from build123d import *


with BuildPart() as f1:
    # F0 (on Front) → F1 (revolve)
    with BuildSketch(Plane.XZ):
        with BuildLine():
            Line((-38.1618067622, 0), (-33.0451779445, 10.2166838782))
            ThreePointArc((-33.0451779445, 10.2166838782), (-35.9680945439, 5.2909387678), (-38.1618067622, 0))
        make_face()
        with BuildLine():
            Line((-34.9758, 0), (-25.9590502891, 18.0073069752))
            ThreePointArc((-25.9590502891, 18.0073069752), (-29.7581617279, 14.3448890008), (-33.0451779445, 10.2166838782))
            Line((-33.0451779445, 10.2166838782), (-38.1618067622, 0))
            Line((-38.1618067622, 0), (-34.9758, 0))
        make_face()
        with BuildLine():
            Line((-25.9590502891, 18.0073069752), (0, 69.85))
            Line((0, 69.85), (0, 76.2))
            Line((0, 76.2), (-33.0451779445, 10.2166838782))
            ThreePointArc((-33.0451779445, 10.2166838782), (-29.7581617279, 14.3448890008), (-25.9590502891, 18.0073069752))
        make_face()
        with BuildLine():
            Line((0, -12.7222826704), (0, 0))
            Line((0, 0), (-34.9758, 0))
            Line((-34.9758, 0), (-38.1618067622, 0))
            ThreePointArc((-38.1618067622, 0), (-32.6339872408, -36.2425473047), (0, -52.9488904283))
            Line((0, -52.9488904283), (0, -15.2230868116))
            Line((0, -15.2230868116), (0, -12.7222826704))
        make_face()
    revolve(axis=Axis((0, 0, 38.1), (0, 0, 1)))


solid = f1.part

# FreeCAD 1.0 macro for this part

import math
import FreeCAD as App
import Part
import Sketcher
from FreeCAD import Vector
Q = App.Units.Quantity

doc = App.newDocument("Part")
params = doc.addObject("Spreadsheet::Sheet", "Params")
for row, (alias, value) in enumerate([
    ("sketch1_height", "0.25 in"),
    ("sketch1_width", "1.377 in"),
    ("revolution_angle", "360 deg"),
], start=1):
    params.set(f"A{row}", alias)
    params.set(f"B{row}", "=" + value)
    params.setAlias(f"B{row}", alias)

body = doc.addObject("PartDesign::Body", "Body")

# Sketch on XZ plane
sketch1 = body.newObject("Sketcher::SketchObject", "Sketch")
sketch1.AttachmentSupport = (doc.getObject("XZ_Plane"), [""])
sketch1.MapMode = "FlatFace"
sketch1.addGeometry(Part.ArcOfCircle(Part.Circle(Vector(0, -12.722283, 0), Vector(0, 0, 1), 40.226608), math.radians(145.232784), math.radians(161.562781)), False)
sketch1.addGeometry(Part.ArcOfCircle(Part.Circle(Vector(0, -12.722283, 0), Vector(0, 0, 1), 40.226608), math.radians(161.562781), math.radians(270)), False)
sketch1.addGeometry(Part.LineSegment(Vector(0, -52.94889, 0), Vector(0, 0, 0)), False)
sketch1.addGeometry(Part.LineSegment(Vector(0, 0, 0), Vector(-34.9758, 0, 0)), False)
sketch1.addGeometry(Part.LineSegment(Vector(-34.9758, 0, 0), Vector(-25.95905, 18.007307, 0)), False)
sketch1.addGeometry(Part.LineSegment(Vector(-25.95905, 18.007307, 0), Vector(0, 69.85, 0)), False)
sketch1.addGeometry(Part.LineSegment(Vector(0, 69.85, 0), Vector(0, 76.2, 0)), False)
sketch1.addGeometry(Part.LineSegment(Vector(0, 76.2, 0), Vector(-33.045178, 10.216684, 0)), False)
sketch1.addConstraint(Sketcher.Constraint("Tangent", 0, 2, 1, 1))
sketch1.addConstraint(Sketcher.Constraint("Coincident", 1, 2, 2, 1))
sketch1.addConstraint(Sketcher.Constraint("Coincident", 2, 2, 3, 1))
sketch1.addConstraint(Sketcher.Constraint("Coincident", 3, 2, 4, 1))
sketch1.addConstraint(Sketcher.Constraint("Coincident", 4, 2, 5, 1))
sketch1.addConstraint(Sketcher.Constraint("Coincident", 5, 2, 6, 1))
sketch1.addConstraint(Sketcher.Constraint("Coincident", 6, 2, 7, 1))
sketch1.addConstraint(Sketcher.Constraint("Coincident", 7, 2, 0, 1))
sketch1.addConstraint(Sketcher.Constraint("Vertical", 2))
sketch1.addConstraint(Sketcher.Constraint("Horizontal", 3))
sketch1.addConstraint(Sketcher.Constraint("Vertical", 6))
sketch1.addConstraint(Sketcher.Constraint("Coincident", 2, 2, -1, 1))
sketch1.addConstraint(Sketcher.Constraint("Equal", 0, 1))
sketch1.addConstraint(Sketcher.Constraint("PointOnObject", 0, 3, -2))
sketch1.addConstraint(Sketcher.Constraint("PointOnObject", 0, 2, -1))
sketch1.addConstraint(Sketcher.Constraint("PointOnObject", 5, 2, -2))
sketch1.addConstraint(Sketcher.Constraint("Parallel", 4, 5))
sketch1.addConstraint(Sketcher.Constraint("DistanceY", -1, 1, 6, 2, Q("3 in")))
sketch1.addConstraint(Sketcher.Constraint("DistanceY", 6, 1, 6, 2, Q("0.25 in")))
sketch1.addConstraint(Sketcher.Constraint("DistanceX", 3, 2, 3, 1, Q("1.377 in")))
sketch1.addConstraint(Sketcher.Constraint("Radius", 0, Q("40.226608 mm")))
sketch1.addConstraint(Sketcher.Constraint("DistanceY", 2, 1, 2, 2, Q("52.94889 mm")))
sketch1.addConstraint(Sketcher.Constraint("Distance", 4, Q("20.138641 mm")))
sketch1.addConstraint(Sketcher.Constraint("Distance", 7, Q("73.79554 mm")))
sketch1.setExpression("Constraints[18]", "Params.sketch1_height")
sketch1.setExpression("Constraints[19]", "Params.sketch1_width")
revolution = body.newObject("PartDesign::Revolution", "Revolution")
revolution.Profile = sketch1
revolution.ReferenceAxis = (sketch1, ["V_Axis"])
revolution.setExpression("Angle", "Params.revolution_angle")

doc.recompute()
